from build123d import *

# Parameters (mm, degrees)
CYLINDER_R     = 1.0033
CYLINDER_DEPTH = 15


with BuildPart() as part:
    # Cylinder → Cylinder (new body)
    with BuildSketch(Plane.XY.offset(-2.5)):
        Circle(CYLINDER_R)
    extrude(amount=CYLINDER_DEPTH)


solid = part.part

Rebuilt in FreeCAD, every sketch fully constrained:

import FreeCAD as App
import Part
import Sketcher

doc = App.newDocument("Part")
body = doc.addObject("PartDesign::Body", "Body")

# Sketch on XY plane
sketch1 = doc.addObject("Sketcher::SketchObject", "Sketch")
body.addObject(sketch1)
sketch1.AttachmentSupport = (doc.XY_Plane, [""])
sketch1.MapMode = "FlatFace"
sketch1.AttachmentOffset = App.Placement(App.Vector(0, 0, -2.5), App.Rotation())
sketch1.addGeometry(Part.Circle(App.Vector(0, 0, 0), App.Vector(0, 0, 1), 1.0033), False)
sketch1.addConstraint([
    Sketcher.Constraint("Coincident", 0, 3, -1, 1),
    Sketcher.Constraint("Diameter", 0, 2.0066),
])
pad1 = doc.addObject("PartDesign::Pad", "Pad")
body.addObject(pad1)
pad1.Profile = sketch1
pad1.Length = 15

doc.recompute()
